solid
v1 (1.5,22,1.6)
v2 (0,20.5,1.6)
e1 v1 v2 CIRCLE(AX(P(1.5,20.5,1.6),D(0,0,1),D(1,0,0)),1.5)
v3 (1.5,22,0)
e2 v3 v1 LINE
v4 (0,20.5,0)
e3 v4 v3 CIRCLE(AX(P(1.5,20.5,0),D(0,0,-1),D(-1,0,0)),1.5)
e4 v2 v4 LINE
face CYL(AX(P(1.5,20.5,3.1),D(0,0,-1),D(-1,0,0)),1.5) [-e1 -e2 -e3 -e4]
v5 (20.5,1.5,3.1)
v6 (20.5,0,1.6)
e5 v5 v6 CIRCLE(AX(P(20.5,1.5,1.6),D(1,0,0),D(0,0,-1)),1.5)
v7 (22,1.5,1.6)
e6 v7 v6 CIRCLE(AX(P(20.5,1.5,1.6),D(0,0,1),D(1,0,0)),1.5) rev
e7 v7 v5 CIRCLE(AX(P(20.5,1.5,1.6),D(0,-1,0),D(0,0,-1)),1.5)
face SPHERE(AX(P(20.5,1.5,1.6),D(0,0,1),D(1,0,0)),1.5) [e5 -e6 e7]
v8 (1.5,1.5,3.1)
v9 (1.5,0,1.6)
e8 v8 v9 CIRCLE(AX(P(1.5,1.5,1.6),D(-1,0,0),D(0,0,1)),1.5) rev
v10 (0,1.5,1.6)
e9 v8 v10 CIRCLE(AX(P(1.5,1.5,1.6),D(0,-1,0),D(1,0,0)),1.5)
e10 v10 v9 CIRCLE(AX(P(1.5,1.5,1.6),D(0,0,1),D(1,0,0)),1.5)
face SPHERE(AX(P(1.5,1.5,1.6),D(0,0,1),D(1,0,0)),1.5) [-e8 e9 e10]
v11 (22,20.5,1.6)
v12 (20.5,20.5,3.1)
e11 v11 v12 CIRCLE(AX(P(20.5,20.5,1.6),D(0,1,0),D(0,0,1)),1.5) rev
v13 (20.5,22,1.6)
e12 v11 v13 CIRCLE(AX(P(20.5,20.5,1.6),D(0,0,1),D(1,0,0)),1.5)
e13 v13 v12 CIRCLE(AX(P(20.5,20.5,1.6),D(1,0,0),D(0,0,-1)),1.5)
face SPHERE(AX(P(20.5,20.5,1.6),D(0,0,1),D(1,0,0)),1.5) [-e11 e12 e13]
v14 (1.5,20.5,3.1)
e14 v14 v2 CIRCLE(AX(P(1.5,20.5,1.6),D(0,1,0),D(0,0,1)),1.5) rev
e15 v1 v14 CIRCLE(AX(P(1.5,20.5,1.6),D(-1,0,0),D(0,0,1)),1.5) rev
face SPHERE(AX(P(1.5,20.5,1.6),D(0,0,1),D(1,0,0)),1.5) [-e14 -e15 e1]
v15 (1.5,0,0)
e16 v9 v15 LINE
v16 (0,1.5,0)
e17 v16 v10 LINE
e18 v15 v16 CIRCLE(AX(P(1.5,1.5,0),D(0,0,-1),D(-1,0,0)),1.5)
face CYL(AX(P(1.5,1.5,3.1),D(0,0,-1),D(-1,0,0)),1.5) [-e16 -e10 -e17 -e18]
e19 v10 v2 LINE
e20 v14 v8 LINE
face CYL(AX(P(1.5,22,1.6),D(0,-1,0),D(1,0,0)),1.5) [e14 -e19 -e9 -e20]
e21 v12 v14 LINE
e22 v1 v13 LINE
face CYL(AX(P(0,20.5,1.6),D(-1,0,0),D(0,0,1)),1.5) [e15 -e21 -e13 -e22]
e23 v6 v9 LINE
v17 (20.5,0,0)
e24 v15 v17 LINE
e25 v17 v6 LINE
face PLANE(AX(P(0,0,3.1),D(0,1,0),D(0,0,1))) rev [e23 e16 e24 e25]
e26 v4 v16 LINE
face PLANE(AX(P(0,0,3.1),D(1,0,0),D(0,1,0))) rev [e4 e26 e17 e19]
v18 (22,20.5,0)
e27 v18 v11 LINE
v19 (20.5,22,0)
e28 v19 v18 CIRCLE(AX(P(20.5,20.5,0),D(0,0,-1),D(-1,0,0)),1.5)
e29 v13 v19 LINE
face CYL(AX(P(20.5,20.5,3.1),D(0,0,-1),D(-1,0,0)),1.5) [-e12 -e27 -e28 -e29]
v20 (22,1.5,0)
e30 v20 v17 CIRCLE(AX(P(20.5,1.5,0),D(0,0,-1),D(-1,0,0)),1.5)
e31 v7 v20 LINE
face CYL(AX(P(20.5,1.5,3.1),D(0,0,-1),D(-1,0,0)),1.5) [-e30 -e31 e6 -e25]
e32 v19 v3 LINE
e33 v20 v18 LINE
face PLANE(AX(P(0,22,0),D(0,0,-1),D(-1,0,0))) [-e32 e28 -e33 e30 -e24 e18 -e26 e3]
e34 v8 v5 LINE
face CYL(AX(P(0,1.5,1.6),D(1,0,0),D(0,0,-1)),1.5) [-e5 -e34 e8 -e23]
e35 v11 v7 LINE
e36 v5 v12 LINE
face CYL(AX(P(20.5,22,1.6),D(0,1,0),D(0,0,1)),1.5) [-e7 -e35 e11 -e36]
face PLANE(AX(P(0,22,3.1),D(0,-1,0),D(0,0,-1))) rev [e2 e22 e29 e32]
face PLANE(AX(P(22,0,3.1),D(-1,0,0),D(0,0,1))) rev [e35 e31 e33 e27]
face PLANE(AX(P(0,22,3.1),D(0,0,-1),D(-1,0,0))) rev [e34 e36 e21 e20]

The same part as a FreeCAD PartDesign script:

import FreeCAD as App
import Part
import Sketcher
from FreeCAD import Vector


def edges_at(feature, points):
    """Names of the edges that pass closest to the given points."""
    edges = feature.Shape.Edges
    near = lambda p: min(range(len(edges)), key=lambda i: edges[i].distToShape(Part.Vertex(*p))[0])
    return sorted({f"Edge{near(p) + 1}" for p in points})

doc = App.newDocument("Part")
body = doc.addObject("PartDesign::Body", "Body")

sketch1 = body.newObject("Sketcher::SketchObject", "Sketch")
sketch1.AttachmentSupport = (doc.getObject("XY_Plane"), [""])
sketch1.MapMode = "FlatFace"
sketch1.addGeometry(Part.LineSegment(Vector(0, 22, 0), Vector(0, 0, 0)), False)
sketch1.addGeometry(Part.LineSegment(Vector(0, 0, 0), Vector(22, 0, 0)), False)
sketch1.addGeometry(Part.LineSegment(Vector(22, 0, 0), Vector(22, 22, 0)), False)
sketch1.addGeometry(Part.LineSegment(Vector(22, 22, 0), Vector(0, 22, 0)), False)
sketch1.addConstraint(Sketcher.Constraint("Coincident", 0, 2, 1, 1))
sketch1.addConstraint(Sketcher.Constraint("Coincident", 1, 2, 2, 1))
sketch1.addConstraint(Sketcher.Constraint("Coincident", 2, 2, 3, 1))
sketch1.addConstraint(Sketcher.Constraint("Coincident", 3, 2, 0, 1))
sketch1.addConstraint(Sketcher.Constraint("Vertical", 0))
sketch1.addConstraint(Sketcher.Constraint("Horizontal", 1))
sketch1.addConstraint(Sketcher.Constraint("Vertical", 2))
sketch1.addConstraint(Sketcher.Constraint("Horizontal", 3))
sketch1.addConstraint(Sketcher.Constraint("Coincident", 0, 2, -1, 1))
sketch1.addConstraint(Sketcher.Constraint("Equal", 3, 0))
sketch1.addConstraint(Sketcher.Constraint("DistanceX", 1, 1, 1, 2, 22.0))
pad1 = body.newObject("PartDesign::Pad", "Pad")
pad1.Profile = sketch1
pad1.Length = 3.1
doc.recompute()

fillet = body.newObject("PartDesign::Fillet", "Fillet")
fillet.Base = (pad1, edges_at(pad1, [
    (22, 11, 3.1),
    (11, 22, 3.1),
    (0, 11, 3.1),
    (11, 0, 3.1),
    (0, 22, 1.55),
    (22, 22, 1.55),
    (22, 0, 1.55),
    (0, 0, 1.55),
]))
fillet.Radius = 1.5

doc.recompute()
